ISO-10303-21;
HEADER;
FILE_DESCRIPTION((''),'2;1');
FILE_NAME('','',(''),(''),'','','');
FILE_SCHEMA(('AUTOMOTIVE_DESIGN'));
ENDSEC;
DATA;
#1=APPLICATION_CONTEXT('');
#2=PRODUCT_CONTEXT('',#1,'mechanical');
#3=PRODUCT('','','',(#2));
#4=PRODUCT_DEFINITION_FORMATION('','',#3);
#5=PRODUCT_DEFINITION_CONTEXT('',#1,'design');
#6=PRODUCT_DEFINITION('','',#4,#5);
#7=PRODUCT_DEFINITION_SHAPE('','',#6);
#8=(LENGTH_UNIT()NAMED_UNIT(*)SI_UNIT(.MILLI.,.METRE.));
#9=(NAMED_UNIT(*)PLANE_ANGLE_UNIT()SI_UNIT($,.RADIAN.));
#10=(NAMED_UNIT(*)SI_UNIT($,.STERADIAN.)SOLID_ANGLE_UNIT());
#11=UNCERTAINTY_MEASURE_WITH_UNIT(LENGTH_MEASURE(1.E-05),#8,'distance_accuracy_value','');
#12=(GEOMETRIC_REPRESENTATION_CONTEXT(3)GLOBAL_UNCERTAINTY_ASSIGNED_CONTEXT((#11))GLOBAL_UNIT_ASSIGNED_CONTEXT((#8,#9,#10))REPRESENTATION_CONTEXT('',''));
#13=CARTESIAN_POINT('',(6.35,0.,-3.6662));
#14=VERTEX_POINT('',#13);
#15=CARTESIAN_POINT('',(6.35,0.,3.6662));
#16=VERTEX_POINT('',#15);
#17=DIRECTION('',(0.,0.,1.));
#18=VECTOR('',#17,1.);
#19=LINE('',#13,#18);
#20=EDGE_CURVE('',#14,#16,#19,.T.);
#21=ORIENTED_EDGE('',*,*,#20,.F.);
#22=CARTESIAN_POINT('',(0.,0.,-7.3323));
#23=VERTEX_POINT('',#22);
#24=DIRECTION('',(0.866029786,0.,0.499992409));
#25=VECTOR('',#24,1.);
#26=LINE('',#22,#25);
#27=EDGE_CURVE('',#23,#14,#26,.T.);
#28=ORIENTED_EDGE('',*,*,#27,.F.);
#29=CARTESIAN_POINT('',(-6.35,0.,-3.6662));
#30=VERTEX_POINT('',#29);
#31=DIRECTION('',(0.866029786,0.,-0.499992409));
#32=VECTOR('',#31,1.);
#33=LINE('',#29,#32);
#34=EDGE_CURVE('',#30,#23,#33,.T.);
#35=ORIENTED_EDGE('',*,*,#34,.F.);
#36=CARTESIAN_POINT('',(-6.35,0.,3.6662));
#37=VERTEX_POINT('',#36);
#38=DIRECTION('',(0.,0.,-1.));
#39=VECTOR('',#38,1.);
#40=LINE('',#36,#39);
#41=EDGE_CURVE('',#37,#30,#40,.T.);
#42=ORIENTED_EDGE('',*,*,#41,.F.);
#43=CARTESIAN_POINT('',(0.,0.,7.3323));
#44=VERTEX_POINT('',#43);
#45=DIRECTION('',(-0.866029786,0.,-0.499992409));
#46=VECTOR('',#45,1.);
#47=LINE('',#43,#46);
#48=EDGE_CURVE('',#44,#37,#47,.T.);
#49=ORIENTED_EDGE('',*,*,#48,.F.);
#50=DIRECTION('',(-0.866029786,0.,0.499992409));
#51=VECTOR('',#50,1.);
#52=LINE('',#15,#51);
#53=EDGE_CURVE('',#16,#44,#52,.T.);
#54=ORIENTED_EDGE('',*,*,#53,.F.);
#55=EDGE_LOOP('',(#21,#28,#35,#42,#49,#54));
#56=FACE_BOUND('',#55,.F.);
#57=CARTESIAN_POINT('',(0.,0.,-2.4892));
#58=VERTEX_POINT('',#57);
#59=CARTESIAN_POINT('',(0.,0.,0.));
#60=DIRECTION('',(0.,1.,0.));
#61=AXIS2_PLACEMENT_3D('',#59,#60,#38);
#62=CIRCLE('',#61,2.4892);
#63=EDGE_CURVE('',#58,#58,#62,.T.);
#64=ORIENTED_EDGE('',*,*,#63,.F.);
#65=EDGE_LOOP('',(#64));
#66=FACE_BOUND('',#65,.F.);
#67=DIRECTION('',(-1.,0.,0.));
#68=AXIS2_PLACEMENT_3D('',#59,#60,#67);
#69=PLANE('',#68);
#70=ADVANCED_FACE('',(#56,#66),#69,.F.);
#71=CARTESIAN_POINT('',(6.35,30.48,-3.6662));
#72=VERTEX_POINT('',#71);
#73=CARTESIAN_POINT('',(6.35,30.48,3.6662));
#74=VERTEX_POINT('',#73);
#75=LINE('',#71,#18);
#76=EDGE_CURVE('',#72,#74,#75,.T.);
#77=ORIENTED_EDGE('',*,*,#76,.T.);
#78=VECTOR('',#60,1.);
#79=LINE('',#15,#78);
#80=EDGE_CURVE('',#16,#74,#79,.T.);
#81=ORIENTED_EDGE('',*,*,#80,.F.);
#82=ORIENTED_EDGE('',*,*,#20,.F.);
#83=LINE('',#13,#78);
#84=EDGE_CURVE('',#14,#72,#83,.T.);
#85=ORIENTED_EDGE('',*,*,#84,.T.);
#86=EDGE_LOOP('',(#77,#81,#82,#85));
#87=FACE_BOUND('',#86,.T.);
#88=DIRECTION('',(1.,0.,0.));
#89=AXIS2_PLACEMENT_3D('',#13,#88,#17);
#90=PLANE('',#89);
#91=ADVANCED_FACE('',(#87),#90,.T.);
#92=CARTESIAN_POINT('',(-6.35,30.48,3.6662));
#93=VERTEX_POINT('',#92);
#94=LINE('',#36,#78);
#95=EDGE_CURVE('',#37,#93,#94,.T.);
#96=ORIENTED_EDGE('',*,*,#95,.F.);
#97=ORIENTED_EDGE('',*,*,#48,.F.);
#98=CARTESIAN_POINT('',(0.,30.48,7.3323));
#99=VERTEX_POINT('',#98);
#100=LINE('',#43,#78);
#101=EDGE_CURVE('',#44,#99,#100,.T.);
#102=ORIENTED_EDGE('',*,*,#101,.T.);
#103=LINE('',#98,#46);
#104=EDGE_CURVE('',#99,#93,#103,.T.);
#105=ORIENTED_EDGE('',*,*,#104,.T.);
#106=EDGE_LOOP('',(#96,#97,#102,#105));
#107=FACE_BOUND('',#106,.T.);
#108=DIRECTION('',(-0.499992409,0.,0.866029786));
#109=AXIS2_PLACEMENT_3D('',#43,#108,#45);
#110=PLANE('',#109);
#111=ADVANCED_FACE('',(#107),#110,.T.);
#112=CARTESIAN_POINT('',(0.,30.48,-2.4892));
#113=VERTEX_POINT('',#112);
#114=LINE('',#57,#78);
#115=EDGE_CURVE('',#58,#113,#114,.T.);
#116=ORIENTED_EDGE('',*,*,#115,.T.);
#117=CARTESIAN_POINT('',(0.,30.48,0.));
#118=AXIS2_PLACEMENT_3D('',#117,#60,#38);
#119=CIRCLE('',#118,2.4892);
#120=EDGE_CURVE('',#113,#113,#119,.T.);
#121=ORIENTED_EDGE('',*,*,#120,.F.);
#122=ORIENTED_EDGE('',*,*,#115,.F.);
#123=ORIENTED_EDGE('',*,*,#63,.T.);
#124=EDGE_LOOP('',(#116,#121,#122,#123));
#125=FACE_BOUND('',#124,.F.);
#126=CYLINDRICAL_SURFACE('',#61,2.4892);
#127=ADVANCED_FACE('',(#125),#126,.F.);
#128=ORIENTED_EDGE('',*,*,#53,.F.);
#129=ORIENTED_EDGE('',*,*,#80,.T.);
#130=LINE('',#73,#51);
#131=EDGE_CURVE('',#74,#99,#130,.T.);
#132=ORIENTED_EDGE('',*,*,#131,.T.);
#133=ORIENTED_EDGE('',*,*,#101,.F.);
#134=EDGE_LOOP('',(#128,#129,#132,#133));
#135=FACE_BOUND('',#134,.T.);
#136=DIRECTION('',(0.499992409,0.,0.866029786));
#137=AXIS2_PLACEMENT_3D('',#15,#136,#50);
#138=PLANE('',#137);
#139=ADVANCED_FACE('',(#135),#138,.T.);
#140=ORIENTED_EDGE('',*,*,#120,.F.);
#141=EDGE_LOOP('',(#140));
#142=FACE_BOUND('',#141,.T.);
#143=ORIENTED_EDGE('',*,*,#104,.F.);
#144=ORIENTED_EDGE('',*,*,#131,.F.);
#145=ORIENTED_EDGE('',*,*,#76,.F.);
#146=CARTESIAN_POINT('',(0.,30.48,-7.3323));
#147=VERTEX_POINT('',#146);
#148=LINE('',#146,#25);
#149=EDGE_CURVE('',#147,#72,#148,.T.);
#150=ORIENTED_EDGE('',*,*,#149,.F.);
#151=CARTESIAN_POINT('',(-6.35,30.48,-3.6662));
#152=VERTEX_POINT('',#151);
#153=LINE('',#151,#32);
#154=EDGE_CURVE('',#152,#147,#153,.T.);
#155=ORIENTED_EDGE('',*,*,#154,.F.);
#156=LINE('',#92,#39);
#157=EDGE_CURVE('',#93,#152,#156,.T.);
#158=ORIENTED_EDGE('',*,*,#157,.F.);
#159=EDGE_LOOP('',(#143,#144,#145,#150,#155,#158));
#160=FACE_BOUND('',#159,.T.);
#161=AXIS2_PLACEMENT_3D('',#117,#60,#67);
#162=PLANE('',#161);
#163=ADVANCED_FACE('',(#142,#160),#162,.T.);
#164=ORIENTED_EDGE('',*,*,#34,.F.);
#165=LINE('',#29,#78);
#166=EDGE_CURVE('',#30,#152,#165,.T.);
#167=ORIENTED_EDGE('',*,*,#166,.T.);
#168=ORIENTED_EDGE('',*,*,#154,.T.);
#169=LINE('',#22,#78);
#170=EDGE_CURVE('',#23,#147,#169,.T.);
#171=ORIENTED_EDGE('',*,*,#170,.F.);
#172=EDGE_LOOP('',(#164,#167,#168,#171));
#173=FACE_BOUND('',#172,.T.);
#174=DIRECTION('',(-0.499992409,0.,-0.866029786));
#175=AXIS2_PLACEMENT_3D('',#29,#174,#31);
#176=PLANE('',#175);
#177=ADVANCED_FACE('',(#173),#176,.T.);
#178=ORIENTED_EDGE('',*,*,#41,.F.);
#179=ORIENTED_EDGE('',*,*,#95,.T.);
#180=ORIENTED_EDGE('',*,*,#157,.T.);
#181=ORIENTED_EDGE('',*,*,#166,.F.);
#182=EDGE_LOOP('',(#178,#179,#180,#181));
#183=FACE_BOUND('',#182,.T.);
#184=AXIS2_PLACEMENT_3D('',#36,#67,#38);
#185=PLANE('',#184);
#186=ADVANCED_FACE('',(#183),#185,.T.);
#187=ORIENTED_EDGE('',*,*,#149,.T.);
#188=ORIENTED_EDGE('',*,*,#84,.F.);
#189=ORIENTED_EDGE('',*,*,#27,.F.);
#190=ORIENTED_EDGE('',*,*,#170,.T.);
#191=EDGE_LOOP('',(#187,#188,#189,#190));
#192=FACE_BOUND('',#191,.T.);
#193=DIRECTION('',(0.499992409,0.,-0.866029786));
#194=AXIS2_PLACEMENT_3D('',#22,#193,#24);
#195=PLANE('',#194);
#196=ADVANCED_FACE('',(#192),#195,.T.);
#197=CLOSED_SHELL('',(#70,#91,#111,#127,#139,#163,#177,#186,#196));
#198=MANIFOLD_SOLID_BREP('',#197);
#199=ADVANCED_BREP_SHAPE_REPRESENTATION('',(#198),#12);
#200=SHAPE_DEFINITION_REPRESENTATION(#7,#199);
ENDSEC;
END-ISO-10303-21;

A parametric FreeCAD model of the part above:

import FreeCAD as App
import Part
import Sketcher
from FreeCAD import Vector
Q = App.Units.Quantity


def add_polygon(sketch, points):
    """Adds a closed chain of lines whose ends are joined by coincident constraints."""
    first, n = sketch.GeometryCount, len(points)
    for a, b in zip(points, points[1:] + points[:1]):
        sketch.addGeometry(Part.LineSegment(App.Vector(*a, 0), App.Vector(*b, 0)), False)
    for i in range(n):
        sketch.addConstraint(Sketcher.Constraint("Coincident", first + i, 2, first + (i + 1) % n, 1))

doc = App.newDocument("Part")
params = doc.addObject("Spreadsheet::Sheet", "Params")
for row, (alias, value) in enumerate([
    ("pad1_length", "1.2 in"),
    ("sketch2_diameter", "0.196 in"),
    ("hole_diameter", "0.196 in"),
], start=1):
    params.set(f"A{row}", alias)
    params.set(f"B{row}", "=" + value)
    params.setAlias(f"B{row}", alias)

body = doc.addObject("PartDesign::Body", "Body")

# Sketch on XZ plane
sketch1 = body.newObject("Sketcher::SketchObject", "Sketch")
sketch1.AttachmentSupport = (doc.getObject("XZ_Plane"), [""])
sketch1.MapMode = "FlatFace"
add_polygon(sketch1, [(0, -7), (-6, -4), (-6, 4), (0, 7), (6, 4), (6, -4)])  # lines 0-5
sketch1.addConstraint(Sketcher.Constraint("Vertical", 1))
sketch1.addConstraint(Sketcher.Constraint("Vertical", 4))
sketch1.addConstraint(Sketcher.Constraint("Symmetric", 0, 2, 3, 2, -1, 1))
sketch1.addConstraint(Sketcher.Constraint("Symmetric", 2, 2, 5, 2, -1, 1))
sketch1.addConstraint(Sketcher.Constraint("PointOnObject", 2, 2, -2))
sketch1.addConstraint(Sketcher.Constraint("Parallel", 2, 5))
sketch1.addConstraint(Sketcher.Constraint("Horizontal", 1, 2, 3, 2))
sketch1.addConstraint(Sketcher.Constraint("DistanceX", 1, 2, 3, 2, Q("0.5 in")))
sketch1.addConstraint(Sketcher.Constraint("Angle", 0, Q("150.0005 deg")))
sketch1.addConstraint(Sketcher.Constraint("DistanceY", 0, 2, 2, 2, Q("0.433 in")))
pad1 = body.newObject("PartDesign::Pad", "Pad")
pad1.Profile = sketch1
pad1.setExpression("Length", "Params.pad1_length")
pad1.Reversed = True

# Sketch on XZ plane
sketch2 = body.newObject("Sketcher::SketchObject", "Sketch001")
sketch2.AttachmentSupport = (doc.getObject("XZ_Plane"), [""])
sketch2.MapMode = "FlatFace"
sketch2.addGeometry(Part.Circle(Vector(0, 0, 0), Vector(0, 0, 1), 2.5), False)
sketch2.addConstraint(Sketcher.Constraint("Coincident", 0, 3, -1, 1))
sketch2.addConstraint(Sketcher.Constraint("Diameter", 0, Q("0.196 in")))
sketch2.setExpression("Constraints[1]", "Params.sketch2_diameter")
doc.recompute()
hole = body.newObject("PartDesign::Hole", "Hole")
hole.Profile = sketch2
hole.ThreadType = "None"
hole.setExpression("Diameter", "Params.hole_diameter")
hole.DepthType = "ThroughAll"

doc.recompute()
